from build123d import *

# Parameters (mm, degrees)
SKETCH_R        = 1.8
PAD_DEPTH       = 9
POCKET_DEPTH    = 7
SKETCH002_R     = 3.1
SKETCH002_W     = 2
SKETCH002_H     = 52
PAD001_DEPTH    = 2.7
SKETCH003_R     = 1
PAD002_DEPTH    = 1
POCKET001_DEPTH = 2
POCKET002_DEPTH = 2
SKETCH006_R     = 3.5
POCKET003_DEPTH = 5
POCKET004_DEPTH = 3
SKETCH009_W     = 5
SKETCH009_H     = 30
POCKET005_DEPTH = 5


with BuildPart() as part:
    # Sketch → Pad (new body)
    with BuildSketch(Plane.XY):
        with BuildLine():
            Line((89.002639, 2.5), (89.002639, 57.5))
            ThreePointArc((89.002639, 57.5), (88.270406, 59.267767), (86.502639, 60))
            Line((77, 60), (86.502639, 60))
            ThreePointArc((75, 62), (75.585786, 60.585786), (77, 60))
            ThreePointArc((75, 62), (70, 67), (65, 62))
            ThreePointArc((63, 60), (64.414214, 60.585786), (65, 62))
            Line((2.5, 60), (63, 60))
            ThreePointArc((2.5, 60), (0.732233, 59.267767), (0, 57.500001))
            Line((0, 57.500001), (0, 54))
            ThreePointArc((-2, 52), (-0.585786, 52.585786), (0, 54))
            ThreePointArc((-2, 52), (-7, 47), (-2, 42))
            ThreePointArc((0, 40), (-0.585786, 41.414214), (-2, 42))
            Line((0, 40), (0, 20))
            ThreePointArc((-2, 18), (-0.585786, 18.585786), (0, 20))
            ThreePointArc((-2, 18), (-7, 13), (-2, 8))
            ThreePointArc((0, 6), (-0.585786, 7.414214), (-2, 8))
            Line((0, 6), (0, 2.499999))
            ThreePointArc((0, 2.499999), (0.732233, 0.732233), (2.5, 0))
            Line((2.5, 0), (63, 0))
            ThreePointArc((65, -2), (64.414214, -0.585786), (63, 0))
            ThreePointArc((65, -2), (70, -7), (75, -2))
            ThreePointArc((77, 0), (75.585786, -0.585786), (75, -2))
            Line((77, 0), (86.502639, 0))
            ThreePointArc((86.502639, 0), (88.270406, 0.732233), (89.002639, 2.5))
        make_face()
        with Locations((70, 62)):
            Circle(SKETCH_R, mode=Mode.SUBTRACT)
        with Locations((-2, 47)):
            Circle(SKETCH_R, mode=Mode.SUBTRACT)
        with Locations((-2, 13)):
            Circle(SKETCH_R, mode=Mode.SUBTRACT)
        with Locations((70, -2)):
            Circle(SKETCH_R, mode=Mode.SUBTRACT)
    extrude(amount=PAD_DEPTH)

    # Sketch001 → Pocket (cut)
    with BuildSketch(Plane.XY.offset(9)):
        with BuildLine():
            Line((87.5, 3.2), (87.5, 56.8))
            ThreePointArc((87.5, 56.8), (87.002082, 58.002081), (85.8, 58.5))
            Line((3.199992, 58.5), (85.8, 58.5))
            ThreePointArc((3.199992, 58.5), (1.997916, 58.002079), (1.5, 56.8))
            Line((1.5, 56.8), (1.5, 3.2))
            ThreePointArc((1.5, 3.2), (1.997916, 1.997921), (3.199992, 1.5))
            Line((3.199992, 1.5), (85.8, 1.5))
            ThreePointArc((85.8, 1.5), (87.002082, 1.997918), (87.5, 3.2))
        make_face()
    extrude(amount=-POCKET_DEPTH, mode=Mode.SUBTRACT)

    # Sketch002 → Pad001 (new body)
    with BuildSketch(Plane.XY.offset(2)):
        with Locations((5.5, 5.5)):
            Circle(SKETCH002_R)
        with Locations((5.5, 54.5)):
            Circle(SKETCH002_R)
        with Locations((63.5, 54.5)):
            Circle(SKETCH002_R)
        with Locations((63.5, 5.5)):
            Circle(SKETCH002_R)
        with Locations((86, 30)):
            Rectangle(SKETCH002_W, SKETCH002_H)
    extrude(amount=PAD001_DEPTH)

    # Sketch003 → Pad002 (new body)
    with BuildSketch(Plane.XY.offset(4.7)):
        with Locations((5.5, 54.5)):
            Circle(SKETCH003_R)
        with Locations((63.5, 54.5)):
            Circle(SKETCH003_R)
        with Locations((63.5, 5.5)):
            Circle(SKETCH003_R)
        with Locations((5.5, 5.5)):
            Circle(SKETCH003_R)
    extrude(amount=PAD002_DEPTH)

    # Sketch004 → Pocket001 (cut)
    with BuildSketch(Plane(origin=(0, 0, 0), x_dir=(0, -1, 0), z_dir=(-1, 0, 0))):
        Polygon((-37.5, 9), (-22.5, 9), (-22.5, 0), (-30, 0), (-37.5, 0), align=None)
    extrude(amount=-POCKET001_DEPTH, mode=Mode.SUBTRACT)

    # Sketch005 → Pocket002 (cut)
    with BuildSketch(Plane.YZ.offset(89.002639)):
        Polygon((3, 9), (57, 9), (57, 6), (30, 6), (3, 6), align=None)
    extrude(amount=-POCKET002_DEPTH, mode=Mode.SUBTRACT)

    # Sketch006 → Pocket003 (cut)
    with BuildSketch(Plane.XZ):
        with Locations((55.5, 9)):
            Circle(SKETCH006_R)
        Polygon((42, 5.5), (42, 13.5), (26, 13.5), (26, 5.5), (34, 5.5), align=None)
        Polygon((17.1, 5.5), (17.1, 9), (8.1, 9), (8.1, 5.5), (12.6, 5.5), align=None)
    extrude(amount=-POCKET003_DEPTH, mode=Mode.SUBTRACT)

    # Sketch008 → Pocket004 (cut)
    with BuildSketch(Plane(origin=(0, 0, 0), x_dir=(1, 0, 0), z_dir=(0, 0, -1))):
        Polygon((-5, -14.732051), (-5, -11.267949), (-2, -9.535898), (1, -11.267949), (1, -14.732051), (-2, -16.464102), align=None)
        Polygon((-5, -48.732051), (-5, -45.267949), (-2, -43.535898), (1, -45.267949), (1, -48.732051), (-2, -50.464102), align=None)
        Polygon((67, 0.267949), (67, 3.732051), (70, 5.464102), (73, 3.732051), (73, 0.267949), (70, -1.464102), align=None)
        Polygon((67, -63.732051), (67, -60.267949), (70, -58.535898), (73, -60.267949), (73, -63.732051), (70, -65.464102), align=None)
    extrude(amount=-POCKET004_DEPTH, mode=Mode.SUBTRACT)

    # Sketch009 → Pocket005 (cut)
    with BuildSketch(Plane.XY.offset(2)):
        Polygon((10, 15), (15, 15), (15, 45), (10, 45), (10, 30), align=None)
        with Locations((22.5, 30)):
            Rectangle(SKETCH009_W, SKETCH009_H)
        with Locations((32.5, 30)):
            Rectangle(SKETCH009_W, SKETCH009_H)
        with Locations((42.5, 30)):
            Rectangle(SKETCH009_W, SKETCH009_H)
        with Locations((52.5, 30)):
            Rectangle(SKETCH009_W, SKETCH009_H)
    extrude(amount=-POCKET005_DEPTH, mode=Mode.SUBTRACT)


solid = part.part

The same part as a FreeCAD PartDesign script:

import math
import FreeCAD as App
import Part
import Sketcher
Q = App.Units.Quantity

doc = App.newDocument("Part")
body = doc.addObject("PartDesign::Body", "Body")

sketch1 = doc.addObject("Sketcher::SketchObject", "Sketch")
body.addObject(sketch1)
sketch1.AttachmentSupport = (doc.XY_Plane, [""])
sketch1.MapMode = "FlatFace"
sketch1.addGeometry([
    Part.LineSegment(App.Vector(89, 2.5, 0), App.Vector(89, 57.5, 0)),
    Part.ArcOfCircle(Part.Circle(App.Vector(86.5, 57.5, 0), App.Vector(0, 0, 1), 2.5), math.radians(0), math.radians(90)),
    Part.LineSegment(App.Vector(86.5, 60, 0), App.Vector(77, 60, 0)),
    Part.ArcOfCircle(Part.Circle(App.Vector(77, 62, 0), App.Vector(0, 0, 1), 2), math.radians(180), math.radians(270)),
    Part.ArcOfCircle(Part.Circle(App.Vector(70, 62, 0), App.Vector(0, 0, 1), 5), math.radians(0), math.radians(180)),
    Part.ArcOfCircle(Part.Circle(App.Vector(63, 62, 0), App.Vector(0, 0, 1), 2), math.radians(-90), math.radians(0)),
    Part.LineSegment(App.Vector(63, 60, 0), App.Vector(2.5, 60, 0)),
    Part.ArcOfCircle(Part.Circle(App.Vector(2.5, 57.5, 0), App.Vector(0, 0, 1), 2.5), math.radians(90), math.radians(180)),
    Part.LineSegment(App.Vector(0, 57.5, 0), App.Vector(0, 54, 0)),
    Part.ArcOfCircle(Part.Circle(App.Vector(-2, 54, 0), App.Vector(0, 0, 1), 2), math.radians(-90), math.radians(0)),
    Part.ArcOfCircle(Part.Circle(App.Vector(-2, 47, 0), App.Vector(0, 0, 1), 5), math.radians(90), math.radians(270)),
    Part.ArcOfCircle(Part.Circle(App.Vector(-2, 40, 0), App.Vector(0, 0, 1), 2), math.radians(0), math.radians(90)),
    Part.LineSegment(App.Vector(0, 40, 0), App.Vector(0, 20, 0)),
    Part.ArcOfCircle(Part.Circle(App.Vector(-2, 20, 0), App.Vector(0, 0, 1), 2), math.radians(-90), math.radians(0)),
    Part.ArcOfCircle(Part.Circle(App.Vector(-2, 13, 0), App.Vector(0, 0, 1), 5), math.radians(90), math.radians(270)),
    Part.ArcOfCircle(Part.Circle(App.Vector(-2, 6, 0), App.Vector(0, 0, 1), 2), math.radians(0), math.radians(90)),
    Part.LineSegment(App.Vector(0, 6, 0), App.Vector(0, 2.5, 0)),
    Part.ArcOfCircle(Part.Circle(App.Vector(2.5, 2.5, 0), App.Vector(0, 0, 1), 2.5), math.radians(-180), math.radians(-90)),
    Part.LineSegment(App.Vector(2.5, 0, 0), App.Vector(63, 0, 0)),
    Part.ArcOfCircle(Part.Circle(App.Vector(63, -2, 0), App.Vector(0, 0, 1), 2), math.radians(0), math.radians(90)),
    Part.ArcOfCircle(Part.Circle(App.Vector(70, -2, 0), App.Vector(0, 0, 1), 5), math.radians(180), math.radians(360)),
    Part.ArcOfCircle(Part.Circle(App.Vector(77, -2, 0), App.Vector(0, 0, 1), 2), math.radians(90), math.radians(180)),
    Part.LineSegment(App.Vector(77, 0, 0), App.Vector(86.5, 0, 0)),
    Part.ArcOfCircle(Part.Circle(App.Vector(86.5, 2.5, 0), App.Vector(0, 0, 1), 2.5), math.radians(-90), math.radians(0)),
    Part.Circle(App.Vector(-2, 13, 0), App.Vector(0, 0, 1), 1.8),
    Part.Circle(App.Vector(70, -2, 0), App.Vector(0, 0, 1), 1.8),
    Part.Circle(App.Vector(-2, 47, 0), App.Vector(0, 0, 1), 1.8),
    Part.Circle(App.Vector(70, 62, 0), App.Vector(0, 0, 1), 1.8),
], False)
sketch1.addConstraint([
    Sketcher.Constraint("Tangent", 0, 2, 1, 1),
    Sketcher.Constraint("Tangent", 1, 2, 2, 1),
    Sketcher.Constraint("Tangent", 2, 2, 3, 2),
    Sketcher.Constraint("Tangent", 3, 1, 4, 1),
    Sketcher.Constraint("Tangent", 4, 2, 5, 2),
    Sketcher.Constraint("Tangent", 5, 1, 6, 1),
    Sketcher.Constraint("Tangent", 6, 2, 7, 1),
    Sketcher.Constraint("Tangent", 7, 2, 8, 1),
    Sketcher.Constraint("Tangent", 8, 2, 9, 2),
    Sketcher.Constraint("Tangent", 9, 1, 10, 1),
    Sketcher.Constraint("Tangent", 10, 2, 11, 2),
    Sketcher.Constraint("Tangent", 11, 1, 12, 1),
    Sketcher.Constraint("Tangent", 12, 2, 13, 2),
    Sketcher.Constraint("Tangent", 13, 1, 14, 1),
    Sketcher.Constraint("Tangent", 14, 2, 15, 2),
    Sketcher.Constraint("Tangent", 15, 1, 16, 1),
    Sketcher.Constraint("Tangent", 16, 2, 17, 1),
    Sketcher.Constraint("Tangent", 17, 2, 18, 1),
    Sketcher.Constraint("Tangent", 18, 2, 19, 2),
    Sketcher.Constraint("Tangent", 19, 1, 20, 1),
    Sketcher.Constraint("Tangent", 20, 2, 21, 2),
    Sketcher.Constraint("Tangent", 21, 1, 22, 1),
    Sketcher.Constraint("Tangent", 22, 2, 23, 1),
    Sketcher.Constraint("Tangent", 23, 2, 0, 1),
    Sketcher.Constraint("Vertical", 0),
    Sketcher.Constraint("Horizontal", 2),
    Sketcher.Constraint("Horizontal", 6),
    Sketcher.Constraint("Vertical", 8),
    Sketcher.Constraint("Vertical", 12),
    Sketcher.Constraint("Vertical", 16),
    Sketcher.Constraint("Horizontal", 18),
    Sketcher.Constraint("Horizontal", 22),
    Sketcher.Constraint("Coincident", 24, 3, 14, 3),
    Sketcher.Constraint("Coincident", 25, 3, 20, 3),
    Sketcher.Constraint("Coincident", 26, 3, 10, 3),
    Sketcher.Constraint("Coincident", 27, 3, 4, 3),
    Sketcher.Constraint("Equal", 3, 5),
    Sketcher.Constraint("Equal", 1, 7),
    Sketcher.Constraint("Equal", 5, 9),
    Sketcher.Constraint("Equal", 4, 10),
    Sketcher.Constraint("Equal", 9, 11),
    Sketcher.Constraint("Equal", 11, 13),
    Sketcher.Constraint("Equal", 10, 14),
    Sketcher.Constraint("Equal", 13, 15),
    Sketcher.Constraint("Equal", 7, 17),
    Sketcher.Constraint("Equal", 15, 19),
    Sketcher.Constraint("Equal", 14, 20),
    Sketcher.Constraint("Equal", 19, 21),
    Sketcher.Constraint("Equal", 17, 23),
    Sketcher.Constraint("Equal", 24, 25),
    Sketcher.Constraint("Equal", 25, 26),
    Sketcher.Constraint("Equal", 26, 27),
    Sketcher.Constraint("PointOnObject", 7, 2, -2),
    Sketcher.Constraint("PointOnObject", 11, 1, -2),
    Sketcher.Constraint("PointOnObject", 15, 1, -2),
    Sketcher.Constraint("PointOnObject", 17, 2, -1),
    Sketcher.Constraint("PointOnObject", 21, 1, -1),
    Sketcher.Constraint("Horizontal", 3, 3, 4, 3),
    Sketcher.Constraint("Horizontal", 4, 3, 5, 3),
    Sketcher.Constraint("Horizontal", 19, 3, 20, 3),
    Sketcher.Constraint("Vertical", 9, 3, 10, 3),
    Sketcher.Constraint("Vertical", 13, 3, 14, 3),
    Sketcher.Constraint("Vertical", 5, 3, 19, 3),
    Sketcher.Constraint("Equal", 8, 16),
    Sketcher.Constraint("Radius", 3, 1.999999),
    Sketcher.Constraint("Radius", 4, 5.0),
    Sketcher.Constraint("Diameter", 24, 3.6),
    Sketcher.Constraint("Radius", 1, 2.5),
    Sketcher.Constraint("DistanceY", 0, 1, 0, 2, 55.0),
    Sketcher.Constraint("DistanceY", 12, 2, 12, 1, 20.0),
    Sketcher.Constraint("DistanceX", 6, 2, 6, 1, 60.5),
    Sketcher.Constraint("DistanceX", 2, 2, 2, 1, 9.502639),
])
pad1 = doc.addObject("PartDesign::Pad", "Pad")
body.addObject(pad1)
pad1.Profile = sketch1
pad1.Length = 9

sketch2 = doc.addObject("Sketcher::SketchObject", "Sketch001")
body.addObject(sketch2)
sketch2.AttachmentSupport = (doc.XY_Plane, [""])
sketch2.MapMode = "FlatFace"
sketch2.AttachmentOffset = App.Placement(App.Vector(0, 0, 9), App.Rotation())
sketch2.addGeometry([
    Part.LineSegment(App.Vector(87.5, 3.2, 0), App.Vector(87.5, 56.8, 0)),
    Part.ArcOfCircle(Part.Circle(App.Vector(85.8, 56.8, 0), App.Vector(0, 0, 1), 1.7), math.radians(0), math.radians(90)),
    Part.LineSegment(App.Vector(85.8, 58.5, 0), App.Vector(3.2, 58.5, 0)),
    Part.ArcOfCircle(Part.Circle(App.Vector(3.2, 56.8, 0), App.Vector(0, 0, 1), 1.7), math.radians(90), math.radians(180)),
    Part.LineSegment(App.Vector(1.5, 56.8, 0), App.Vector(1.5, 3.2, 0)),
    Part.ArcOfCircle(Part.Circle(App.Vector(3.2, 3.2, 0), App.Vector(0, 0, 1), 1.7), math.radians(-180), math.radians(-90)),
    Part.LineSegment(App.Vector(3.2, 1.5, 0), App.Vector(85.8, 1.5, 0)),
    Part.ArcOfCircle(Part.Circle(App.Vector(85.8, 3.2, 0), App.Vector(0, 0, 1), 1.7), math.radians(-90), math.radians(0)),
], False)
sketch2.addConstraint([
    Sketcher.Constraint("Tangent", 0, 2, 1, 1),
    Sketcher.Constraint("Tangent", 1, 2, 2, 1),
    Sketcher.Constraint("Coincident", 2, 2, 3, 1),
    Sketcher.Constraint("Tangent", 3, 2, 4, 1),
    Sketcher.Constraint("Tangent", 4, 2, 5, 1),
    Sketcher.Constraint("Coincident", 5, 2, 6, 1),
    Sketcher.Constraint("Tangent", 6, 2, 7, 1),
    Sketcher.Constraint("Tangent", 7, 2, 0, 1),
    Sketcher.Constraint("Vertical", 0),
    Sketcher.Constraint("Horizontal", 2),
    Sketcher.Constraint("Vertical", 4),
    Sketcher.Constraint("Horizontal", 6),
    Sketcher.Constraint("Equal", 1, 3),
    Sketcher.Constraint("Equal", 3, 5),
    Sketcher.Constraint("Equal", 5, 7),
    Sketcher.Constraint("Vertical", 2, 2, 5, 2),
    Sketcher.Constraint("Radius", 1, 1.7),
    Sketcher.Constraint("DistanceY", 0, 1, 0, 2, 53.6),
    Sketcher.Constraint("DistanceX", -1, 1, 1, 3, 85.8),
    Sketcher.Constraint("DistanceY", -1, 1, 1, 3, 56.8),
    Sketcher.Constraint("DistanceX", -1, 1, 3, 3, 3.2),
    Sketcher.Constraint("DistanceX", 2, 2, 2, 1, 82.600008),
])
pocket1 = doc.addObject("PartDesign::Pocket", "Pocket")
body.addObject(pocket1)
pocket1.Profile = sketch2
pocket1.Length = 7

sketch3 = doc.addObject("Sketcher::SketchObject", "Sketch002")
body.addObject(sketch3)
sketch3.AttachmentSupport = (doc.XY_Plane, [""])
sketch3.MapMode = "FlatFace"
sketch3.AttachmentOffset = App.Placement(App.Vector(0, 0, 2), App.Rotation())
sketch3.addGeometry([
    Part.Circle(App.Vector(5.5, 5.5, 0), App.Vector(0, 0, 1), 3.1),
    Part.Circle(App.Vector(5.5, 54.5, 0), App.Vector(0, 0, 1), 3.1),
    Part.Circle(App.Vector(63.5, 54.5, 0), App.Vector(0, 0, 1), 3.1),
    Part.Circle(App.Vector(63.5, 5.5, 0), App.Vector(0, 0, 1), 3.1),
    Part.LineSegment(App.Vector(85, 56, 0), App.Vector(85, 4, 0)),
    Part.LineSegment(App.Vector(85, 4, 0), App.Vector(87, 4, 0)),
    Part.LineSegment(App.Vector(87, 4, 0), App.Vector(87, 56, 0)),
    Part.LineSegment(App.Vector(87, 56, 0), App.Vector(85, 56, 0)),
], False)
sketch3.addConstraint([
    Sketcher.Constraint("Coincident", 4, 2, 5, 1),
    Sketcher.Constraint("Coincident", 5, 2, 6, 1),
    Sketcher.Constraint("Coincident", 6, 2, 7, 1),
    Sketcher.Constraint("Coincident", 7, 2, 4, 1),
    Sketcher.Constraint("Vertical", 4),
    Sketcher.Constraint("Horizontal", 5),
    Sketcher.Constraint("Vertical", 6),
    Sketcher.Constraint("Horizontal", 7),
    Sketcher.Constraint("Equal", 0, 1),
    Sketcher.Constraint("Equal", 1, 2),
    Sketcher.Constraint("Equal", 2, 3),
    Sketcher.Constraint("Horizontal", 1, 3, 2, 3),
    Sketcher.Constraint("Horizontal", 0, 3, 3, 3),
    Sketcher.Constraint("Vertical", 0, 3, 1, 3),
    Sketcher.Constraint("Vertical", 2, 3, 3, 3),
    Sketcher.Constraint("Diameter", 0, 6.2),
    Sketcher.Constraint("DistanceX", 5, 1, 5, 2, 2.0),
    Sketcher.Constraint("DistanceY", 4, 2, 4, 1, 52.0),
    Sketcher.Constraint("DistanceX", -1, 1, 4, 2, 85.0),
    Sketcher.Constraint("DistanceY", -1, 1, 4, 2, 4.0),
    Sketcher.Constraint("DistanceY", 0, 3, 1, 3, 49.0),
    Sketcher.Constraint("DistanceX", 1, 3, 2, 3, 58.0),
    Sketcher.Constraint("DistanceX", -1, 1, 0, 3, 5.5),
    Sketcher.Constraint("DistanceY", -1, 1, 0, 3, 5.5),
])
pad2 = doc.addObject("PartDesign::Pad", "Pad001")
body.addObject(pad2)
pad2.Profile = sketch3
pad2.Length = 2.7

sketch4 = doc.addObject("Sketcher::SketchObject", "Sketch003")
body.addObject(sketch4)
sketch4.AttachmentSupport = (doc.XY_Plane, [""])
sketch4.MapMode = "FlatFace"
sketch4.AttachmentOffset = App.Placement(App.Vector(0, 0, 4.7), App.Rotation())
sketch4.addGeometry([
    Part.Circle(App.Vector(5.5, 54.5, 0), App.Vector(0, 0, 1), 1),
    Part.Circle(App.Vector(63.5, 54.5, 0), App.Vector(0, 0, 1), 1),
    Part.Circle(App.Vector(63.5, 5.5, 0), App.Vector(0, 0, 1), 1),
    Part.Circle(App.Vector(5.5, 5.5, 0), App.Vector(0, 0, 1), 1),
], False)
sketch4.addConstraint([
    Sketcher.Constraint("Equal", 0, 1),
    Sketcher.Constraint("Equal", 1, 2),
    Sketcher.Constraint("Equal", 2, 3),
    Sketcher.Constraint("Horizontal", 0, 3, 1, 3),
    Sketcher.Constraint("Horizontal", 2, 3, 3, 3),
    Sketcher.Constraint("Vertical", 1, 3, 2, 3),
    Sketcher.Constraint("Vertical", 0, 3, 3, 3),
    Sketcher.Constraint("Diameter", 0, 2.0),
    Sketcher.Constraint("DistanceX", 0, 3, 1, 3, 58.0),
    Sketcher.Constraint("DistanceY", 2, 3, 1, 3, 49.0),
    Sketcher.Constraint("DistanceX", -1, 1, 0, 3, 5.5),
    Sketcher.Constraint("DistanceY", -1, 1, 0, 3, 54.5),
])
pad3 = doc.addObject("PartDesign::Pad", "Pad002")
body.addObject(pad3)
pad3.Profile = sketch4
pad3.Length = 1

sketch5 = doc.addObject("Sketcher::SketchObject", "Sketch004")
body.addObject(sketch5)
sketch5.AttachmentSupport = (doc.YZ_Plane, [""])
sketch5.MapMode = "FlatFace"
sketch5.addGeometry([
    Part.LineSegment(App.Vector(22, 9, 0), App.Vector(38, 9, 0)),
    Part.LineSegment(App.Vector(38, 9, 0), App.Vector(38, 0, 0)),
    Part.LineSegment(App.Vector(38, 0, 0), App.Vector(22, 0, 0)),
    Part.LineSegment(App.Vector(22, 0, 0), App.Vector(22, 9, 0)),
], False)
sketch5.addConstraint([
    Sketcher.Constraint("Coincident", 0, 2, 1, 1),
    Sketcher.Constraint("Coincident", 1, 2, 2, 1),
    Sketcher.Constraint("Coincident", 2, 2, 3, 1),
    Sketcher.Constraint("Coincident", 3, 2, 0, 1),
    Sketcher.Constraint("Horizontal", 0),
    Sketcher.Constraint("Vertical", 1),
    Sketcher.Constraint("Horizontal", 2),
    Sketcher.Constraint("Vertical", 3),
    Sketcher.Constraint("PointOnObject", 1, 2, -1),
    Sketcher.Constraint("DistanceX", 0, 1, 0, 2, 15.0),
    Sketcher.Constraint("DistanceY", 1, 2, 1, 1, 9.0),
    Sketcher.Constraint("DistanceX", -1, 1, 0, 2, 37.5),
])
pocket2 = doc.addObject("PartDesign::Pocket", "Pocket001")
body.addObject(pocket2)
pocket2.Profile = sketch5
pocket2.Length = 2
pocket2.Reversed = True

sketch6 = doc.addObject("Sketcher::SketchObject", "Sketch005")
body.addObject(sketch6)
sketch6.AttachmentSupport = (doc.YZ_Plane, [""])
sketch6.MapMode = "FlatFace"
sketch6.AttachmentOffset = App.Placement(App.Vector(0, 0, 89.002639), App.Rotation())
sketch6.addGeometry([
    Part.LineSegment(App.Vector(57, 9, 0), App.Vector(3, 9, 0)),
    Part.LineSegment(App.Vector(3, 9, 0), App.Vector(3, 6, 0)),
    Part.LineSegment(App.Vector(3, 6, 0), App.Vector(57, 6, 0)),
    Part.LineSegment(App.Vector(57, 6, 0), App.Vector(57, 9, 0)),
], False)
sketch6.addConstraint([
    Sketcher.Constraint("Coincident", 0, 2, 1, 1),
    Sketcher.Constraint("Coincident", 1, 2, 2, 1),
    Sketcher.Constraint("Coincident", 2, 2, 3, 1),
    Sketcher.Constraint("Coincident", 3, 2, 0, 1),
    Sketcher.Constraint("Horizontal", 0),
    Sketcher.Constraint("Vertical", 1),
    Sketcher.Constraint("Horizontal", 2),
    Sketcher.Constraint("Vertical", 3),
    Sketcher.Constraint("DistanceX", 0, 2, 0, 1, 54.0),
    Sketcher.Constraint("DistanceY", 1, 2, 1, 1, 3.0),
    Sketcher.Constraint("DistanceX", -1, 1, 0, 2, 3.0),
    Sketcher.Constraint("DistanceY", -1, 1, 0, 2, 9.0),
])
pocket3 = doc.addObject("PartDesign::Pocket", "Pocket002")
body.addObject(pocket3)
pocket3.Profile = sketch6
pocket3.Length = 2

sketch7 = doc.addObject("Sketcher::SketchObject", "Sketch006")
body.addObject(sketch7)
sketch7.AttachmentSupport = (doc.XZ_Plane, [""])
sketch7.MapMode = "FlatFace"
sketch7.addGeometry([
    Part.Circle(App.Vector(55.5, 9, 0), App.Vector(0, 0, 1), 3.5),
    Part.LineSegment(App.Vector(42, 5.5, 0), App.Vector(42, 13.5, 0)),
    Part.LineSegment(App.Vector(42, 13.5, 0), App.Vector(26, 13.5, 0)),
    Part.LineSegment(App.Vector(26, 13.5, 0), App.Vector(26, 5.5, 0)),
    Part.LineSegment(App.Vector(26, 5.5, 0), App.Vector(42, 5.5, 0)),
    Part.LineSegment(App.Vector(17.1, 5.5, 0), App.Vector(17.1, 9, 0)),
    Part.LineSegment(App.Vector(17.1, 9, 0), App.Vector(8.1, 9, 0)),
    Part.LineSegment(App.Vector(8.1, 9, 0), App.Vector(8.1, 5.5, 0)),
    Part.LineSegment(App.Vector(8.1, 5.5, 0), App.Vector(17.1, 5.5, 0)),
], False)
sketch7.addConstraint([
    Sketcher.Constraint("Coincident", 1, 2, 2, 1),
    Sketcher.Constraint("Coincident", 2, 2, 3, 1),
    Sketcher.Constraint("Coincident", 3, 2, 4, 1),
    Sketcher.Constraint("Coincident", 4, 2, 1, 1),
    Sketcher.Constraint("Coincident", 5, 2, 6, 1),
    Sketcher.Constraint("Coincident", 6, 2, 7, 1),
    Sketcher.Constraint("Coincident", 7, 2, 8, 1),
    Sketcher.Constraint("Coincident", 8, 2, 5, 1),
    Sketcher.Constraint("Vertical", 1),
    Sketcher.Constraint("Horizontal", 2),
    Sketcher.Constraint("Vertical", 3),
    Sketcher.Constraint("Horizontal", 4),
    Sketcher.Constraint("Vertical", 5),
    Sketcher.Constraint("Horizontal", 6),
    Sketcher.Constraint("Vertical", 7),
    Sketcher.Constraint("Horizontal", 8),
    Sketcher.Constraint("Horizontal", 0, 3, 5, 2),
    Sketcher.Constraint("Horizontal", 4, 2, 7, 2),
    Sketcher.Constraint("Diameter", 0, 7.0),
    Sketcher.Constraint("DistanceX", 2, 2, 2, 1, 16.0),
    Sketcher.Constraint("DistanceX", 6, 2, 6, 1, 9.0),
    Sketcher.Constraint("DistanceY", 1, 1, 1, 2, 8.0),
    Sketcher.Constraint("DistanceY", 5, 1, 5, 2, 3.5),
    Sketcher.Constraint("DistanceY", -1, 1, 0, 3, 9.0),
    Sketcher.Constraint("DistanceX", -1, 1, 1, 2, 42.0),
    Sketcher.Constraint("DistanceX", -1, 1, 0, 3, 55.5),
    Sketcher.Constraint("DistanceX", -1, 1, 5, 2, 17.1),
])
pocket4 = doc.addObject("PartDesign::Pocket", "Pocket003")
body.addObject(pocket4)
pocket4.Profile = sketch7
pocket4.Length = 5

sketch8 = doc.addObject("Sketcher::SketchObject", "Sketch007")
body.addObject(sketch8)
sketch8.AttachmentSupport = (doc.XY_Plane, [""])
sketch8.MapMode = "FlatFace"
sketch8.addGeometry([
    Part.LineSegment(App.Vector(-5, 11.3, 0), App.Vector(-5, 14.7, 0)),
    Part.LineSegment(App.Vector(-5, 14.7, 0), App.Vector(-2, 16.5, 0)),
    Part.LineSegment(App.Vector(-2, 16.5, 0), App.Vector(1, 14.7, 0)),
    Part.LineSegment(App.Vector(1, 14.7, 0), App.Vector(1, 11.3, 0)),
    Part.LineSegment(App.Vector(1, 11.3, 0), App.Vector(-2, 9.5, 0)),
    Part.LineSegment(App.Vector(-2, 9.5, 0), App.Vector(-5, 11.3, 0)),
    Part.LineSegment(App.Vector(-5, 45.3, 0), App.Vector(-5, 48.7, 0)),
    Part.LineSegment(App.Vector(-5, 48.7, 0), App.Vector(-2, 50.5, 0)),
    Part.LineSegment(App.Vector(-2, 50.5, 0), App.Vector(1, 48.7, 0)),
    Part.LineSegment(App.Vector(1, 48.7, 0), App.Vector(1, 45.3, 0)),
    Part.LineSegment(App.Vector(1, 45.3, 0), App.Vector(-2, 43.5, 0)),
    Part.LineSegment(App.Vector(-2, 43.5, 0), App.Vector(-5, 45.3, 0)),
    Part.LineSegment(App.Vector(67, -3.7, 0), App.Vector(67, -0.3, 0)),
    Part.LineSegment(App.Vector(67, -0.3, 0), App.Vector(70, 1.5, 0)),
    Part.LineSegment(App.Vector(70, 1.5, 0), App.Vector(73, -0.3, 0)),
    Part.LineSegment(App.Vector(73, -0.3, 0), App.Vector(73, -3.7, 0)),
    Part.LineSegment(App.Vector(73, -3.7, 0), App.Vector(70, -5.5, 0)),
    Part.LineSegment(App.Vector(70, -5.5, 0), App.Vector(67, -3.7, 0)),
    Part.LineSegment(App.Vector(67, 60.3, 0), App.Vector(67, 63.7, 0)),
    Part.LineSegment(App.Vector(67, 63.7, 0), App.Vector(70, 65.5, 0)),
    Part.LineSegment(App.Vector(70, 65.5, 0), App.Vector(73, 63.7, 0)),
    Part.LineSegment(App.Vector(73, 63.7, 0), App.Vector(73, 60.3, 0)),
    Part.LineSegment(App.Vector(73, 60.3, 0), App.Vector(70, 58.5, 0)),
    Part.LineSegment(App.Vector(70, 58.5, 0), App.Vector(67, 60.3, 0)),
], False)
sketch8.addConstraint([
    Sketcher.Constraint("Coincident", 0, 2, 1, 1),
    Sketcher.Constraint("Coincident", 1, 2, 2, 1),
    Sketcher.Constraint("Coincident", 2, 2, 3, 1),
    Sketcher.Constraint("Coincident", 3, 2, 4, 1),
    Sketcher.Constraint("Coincident", 4, 2, 5, 1),
    Sketcher.Constraint("Coincident", 5, 2, 0, 1),
    Sketcher.Constraint("Coincident", 6, 2, 7, 1),
    Sketcher.Constraint("Coincident", 7, 2, 8, 1),
    Sketcher.Constraint("Coincident", 8, 2, 9, 1),
    Sketcher.Constraint("Coincident", 9, 2, 10, 1),
    Sketcher.Constraint("Coincident", 10, 2, 11, 1),
    Sketcher.Constraint("Coincident", 11, 2, 6, 1),
    Sketcher.Constraint("Coincident", 12, 2, 13, 1),
    Sketcher.Constraint("Coincident", 13, 2, 14, 1),
    Sketcher.Constraint("Coincident", 14, 2, 15, 1),
    Sketcher.Constraint("Coincident", 15, 2, 16, 1),
    Sketcher.Constraint("Coincident", 16, 2, 17, 1),
    Sketcher.Constraint("Coincident", 17, 2, 12, 1),
    Sketcher.Constraint("Coincident", 18, 2, 19, 1),
    Sketcher.Constraint("Coincident", 19, 2, 20, 1),
    Sketcher.Constraint("Coincident", 20, 2, 21, 1),
    Sketcher.Constraint("Coincident", 21, 2, 22, 1),
    Sketcher.Constraint("Coincident", 22, 2, 23, 1),
    Sketcher.Constraint("Coincident", 23, 2, 18, 1),
    Sketcher.Constraint("Vertical", 0),
    Sketcher.Constraint("Vertical", 3),
    Sketcher.Constraint("Vertical", 6),
    Sketcher.Constraint("Vertical", 9),
    Sketcher.Constraint("Vertical", 12),
    Sketcher.Constraint("Vertical", 15),
    Sketcher.Constraint("Vertical", 18),
    Sketcher.Constraint("Vertical", 21),
    Sketcher.Constraint("Parallel", 1, 4),
    Sketcher.Constraint("Parallel", 2, 5),
    Sketcher.Constraint("Parallel", 4, 7),
    Sketcher.Constraint("Parallel", 5, 8),
    Sketcher.Constraint("Parallel", 7, 10),
    Sketcher.Constraint("Parallel", 8, 11),
    Sketcher.Constraint("Parallel", 10, 13),
    Sketcher.Constraint("Parallel", 11, 14),
    Sketcher.Constraint("Parallel", 13, 16),
    Sketcher.Constraint("Parallel", 14, 17),
    Sketcher.Constraint("Parallel", 16, 19),
    Sketcher.Constraint("Parallel", 17, 20),
    Sketcher.Constraint("Parallel", 19, 22),
    Sketcher.Constraint("Parallel", 20, 23),
    Sketcher.Constraint("Horizontal", 0, 2, 2, 2),
    Sketcher.Constraint("Horizontal", 3, 2, 5, 2),
    Sketcher.Constraint("Horizontal", 6, 2, 8, 2),
    Sketcher.Constraint("Horizontal", 9, 2, 11, 2),
    Sketcher.Constraint("Horizontal", 12, 2, 14, 2),
    Sketcher.Constraint("Horizontal", 15, 2, 17, 2),
    Sketcher.Constraint("Horizontal", 18, 2, 20, 2),
    Sketcher.Constraint("Horizontal", 21, 2, 23, 2),
    Sketcher.Constraint("Vertical", 1, 2, 4, 2),
    Sketcher.Constraint("Vertical", 5, 2, 6, 2),
    Sketcher.Constraint("Vertical", 4, 2, 7, 2),
    Sketcher.Constraint("Vertical", 17, 2, 18, 2),
    Sketcher.Constraint("Vertical", 16, 2, 19, 2),
    Sketcher.Constraint("Equal", 3, 6),
    Sketcher.Constraint("Equal", 9, 12),
    Sketcher.Constraint("Equal", 15, 18),
    Sketcher.Constraint("Equal", 11, 13),
    Sketcher.Constraint("Angle", 1, Q("30.000003 deg")),
    Sketcher.Constraint("DistanceX", 0, 2, -1, 1, 5.0),
    Sketcher.Constraint("DistanceX", 1, 2, -1, 1, 2.0),
    Sketcher.Constraint("DistanceX", -1, 1, 12, 2, 67.0),
    Sketcher.Constraint("DistanceY", 0, 2, 6, 2, 34.0),
    Sketcher.Constraint("DistanceY", 12, 2, 2, 2, 15.0),
    Sketcher.Constraint("DistanceY", 12, 2, 18, 2, 64.0),
    Sketcher.Constraint("DistanceY", 6, 1, 6, 2, 3.464102),
    Sketcher.Constraint("DistanceY", -1, 1, 7, 2, 50.464102),
])
pocket5 = doc.addObject("PartDesign::Pocket", "Pocket004")
body.addObject(pocket5)
pocket5.Profile = sketch8
pocket5.Length = 3
pocket5.Reversed = True

sketch9 = doc.addObject("Sketcher::SketchObject", "Sketch008")
body.addObject(sketch9)
sketch9.AttachmentSupport = (doc.XY_Plane, [""])
sketch9.MapMode = "FlatFace"
sketch9.AttachmentOffset = App.Placement(App.Vector(0, 0, 2), App.Rotation())
sketch9.addGeometry([
    Part.LineSegment(App.Vector(10, 15, 0), App.Vector(15, 15, 0)),
    Part.LineSegment(App.Vector(15, 15, 0), App.Vector(15, 45, 0)),
    Part.LineSegment(App.Vector(15, 45, 0), App.Vector(10, 45, 0)),
    Part.LineSegment(App.Vector(10, 45, 0), App.Vector(10, 15, 0)),
    Part.LineSegment(App.Vector(20, 45, 0), App.Vector(20, 15, 0)),
    Part.LineSegment(App.Vector(20, 15, 0), App.Vector(25, 15, 0)),
    Part.LineSegment(App.Vector(25, 15, 0), App.Vector(25, 45, 0)),
    Part.LineSegment(App.Vector(25, 45, 0), App.Vector(20, 45, 0)),
    Part.LineSegment(App.Vector(30, 45, 0), App.Vector(30, 15, 0)),
    Part.LineSegment(App.Vector(30, 15, 0), App.Vector(35, 15, 0)),
    Part.LineSegment(App.Vector(35, 15, 0), App.Vector(35, 45, 0)),
    Part.LineSegment(App.Vector(35, 45, 0), App.Vector(30, 45, 0)),
    Part.LineSegment(App.Vector(40, 45, 0), App.Vector(40, 15, 0)),
    Part.LineSegment(App.Vector(40, 15, 0), App.Vector(45, 15, 0)),
    Part.LineSegment(App.Vector(45, 15, 0), App.Vector(45, 45, 0)),
    Part.LineSegment(App.Vector(45, 45, 0), App.Vector(40, 45, 0)),
    Part.LineSegment(App.Vector(50, 45, 0), App.Vector(50, 15, 0)),
    Part.LineSegment(App.Vector(50, 15, 0), App.Vector(55, 15, 0)),
    Part.LineSegment(App.Vector(55, 15, 0), App.Vector(55, 45, 0)),
    Part.LineSegment(App.Vector(55, 45, 0), App.Vector(50, 45, 0)),
], False)
sketch9.addConstraint([
    Sketcher.Constraint("Coincident", 0, 2, 1, 1),
    Sketcher.Constraint("Coincident", 1, 2, 2, 1),
    Sketcher.Constraint("Coincident", 2, 2, 3, 1),
    Sketcher.Constraint("Coincident", 3, 2, 0, 1),
    Sketcher.Constraint("Coincident", 4, 2, 5, 1),
    Sketcher.Constraint("Coincident", 5, 2, 6, 1),
    Sketcher.Constraint("Coincident", 6, 2, 7, 1),
    Sketcher.Constraint("Coincident", 7, 2, 4, 1),
    Sketcher.Constraint("Coincident", 8, 2, 9, 1),
    Sketcher.Constraint("Coincident", 9, 2, 10, 1),
    Sketcher.Constraint("Coincident", 10, 2, 11, 1),
    Sketcher.Constraint("Coincident", 11, 2, 8, 1),
    Sketcher.Constraint("Coincident", 12, 2, 13, 1),
    Sketcher.Constraint("Coincident", 13, 2, 14, 1),
    Sketcher.Constraint("Coincident", 14, 2, 15, 1),
    Sketcher.Constraint("Coincident", 15, 2, 12, 1),
    Sketcher.Constraint("Coincident", 16, 2, 17, 1),
    Sketcher.Constraint("Coincident", 17, 2, 18, 1),
    Sketcher.Constraint("Coincident", 18, 2, 19, 1),
    Sketcher.Constraint("Coincident", 19, 2, 16, 1),
    Sketcher.Constraint("Horizontal", 0),
    Sketcher.Constraint("Vertical", 1),
    Sketcher.Constraint("Horizontal", 2),
    Sketcher.Constraint("Vertical", 3),
    Sketcher.Constraint("Vertical", 4),
    Sketcher.Constraint("Horizontal", 5),
    Sketcher.Constraint("Vertical", 6),
    Sketcher.Constraint("Horizontal", 7),
    Sketcher.Constraint("Vertical", 8),
    Sketcher.Constraint("Horizontal", 9),
    Sketcher.Constraint("Vertical", 10),
    Sketcher.Constraint("Horizontal", 11),
    Sketcher.Constraint("Vertical", 12),
    Sketcher.Constraint("Horizontal", 13),
    Sketcher.Constraint("Vertical", 14),
    Sketcher.Constraint("Horizontal", 15),
    Sketcher.Constraint("Vertical", 16),
    Sketcher.Constraint("Horizontal", 17),
    Sketcher.Constraint("Vertical", 18),
    Sketcher.Constraint("Horizontal", 19),
    Sketcher.Constraint("Horizontal", 3, 2, 4, 2),
    Sketcher.Constraint("Horizontal", 2, 2, 6, 2),
    Sketcher.Constraint("Horizontal", 5, 2, 8, 2),
    Sketcher.Constraint("Horizontal", 7, 2, 10, 2),
    Sketcher.Constraint("Horizontal", 9, 2, 12, 2),
    Sketcher.Constraint("Horizontal", 11, 2, 14, 2),
    Sketcher.Constraint("Horizontal", 13, 2, 16, 2),
    Sketcher.Constraint("Horizontal", 15, 2, 18, 2),
    Sketcher.Constraint("Equal", 2, 5),
    Sketcher.Constraint("Equal", 7, 9),
    Sketcher.Constraint("Equal", 11, 13),
    Sketcher.Constraint("Equal", 15, 17),
    Sketcher.Constraint("DistanceX", 0, 1, 0, 2, 5.0),
    Sketcher.Constraint("DistanceY", 1, 1, 1, 2, 30.0),
    Sketcher.Constraint("DistanceX", -1, 1, 0, 2, 15.0),
    Sketcher.Constraint("DistanceY", -1, 1, 0, 2, 15.0),
    Sketcher.Constraint("DistanceX", -1, 1, 4, 2, 20.0),
    Sketcher.Constraint("DistanceX", -1, 1, 8, 2, 30.0),
    Sketcher.Constraint("DistanceX", -1, 1, 12, 2, 40.0),
    Sketcher.Constraint("DistanceX", -1, 1, 16, 2, 50.0),
])
pocket6 = doc.addObject("PartDesign::Pocket", "Pocket005")
body.addObject(pocket6)
pocket6.Profile = sketch9
pocket6.Length = 5

doc.recompute()
